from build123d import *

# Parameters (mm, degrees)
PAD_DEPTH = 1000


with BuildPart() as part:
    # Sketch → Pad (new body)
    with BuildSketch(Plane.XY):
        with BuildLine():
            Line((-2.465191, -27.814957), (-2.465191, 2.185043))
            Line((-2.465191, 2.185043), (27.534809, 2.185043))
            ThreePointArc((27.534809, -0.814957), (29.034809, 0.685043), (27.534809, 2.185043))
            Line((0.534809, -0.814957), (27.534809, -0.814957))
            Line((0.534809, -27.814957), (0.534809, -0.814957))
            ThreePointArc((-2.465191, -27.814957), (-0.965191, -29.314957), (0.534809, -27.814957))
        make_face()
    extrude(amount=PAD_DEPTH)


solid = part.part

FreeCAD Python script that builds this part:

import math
import FreeCAD as App
import Part
import Sketcher
from FreeCAD import Vector
Q = App.Units.Quantity

doc = App.newDocument("Part")
body = doc.addObject("PartDesign::Body", "Body")

# Sketch on XY plane
sketch1 = body.newObject("Sketcher::SketchObject", "Sketch")
sketch1.AttachmentSupport = (doc.getObject("XY_Plane"), [""])
sketch1.MapMode = "FlatFace"
sketch1.addGeometry([
    Part.LineSegment(Vector(-2.5, 2.2, 0), Vector(-2.5, -27.8, 0)),  # 0
    Part.ArcOfCircle(Part.Circle(Vector(-1, -27.8, 0), Vector(0, 0, 1), 1.5), math.radians(180), math.radians(360)),  # 1
    Part.LineSegment(Vector(0.5, -27.8, 0), Vector(0.5, -0.8, 0)),  # 2
    Part.LineSegment(Vector(0.5, -0.8, 0), Vector(27.5, -0.8, 0)),  # 3
    Part.ArcOfCircle(Part.Circle(Vector(27.5, 0.7, 0), Vector(0, 0, 1), 1.5), math.radians(-90), math.radians(90)),  # 4
    Part.LineSegment(Vector(27.5, 2.2, 0), Vector(-2.5, 2.2, 0)),  # 5
], False)
sketch1.addConstraint([
    Sketcher.Constraint("Tangent", 0, 2, 1, 1),
    Sketcher.Constraint("Tangent", 1, 2, 2, 1),
    Sketcher.Constraint("Coincident", 2, 2, 3, 1),
    Sketcher.Constraint("Tangent", 3, 2, 4, 1),
    Sketcher.Constraint("Tangent", 4, 2, 5, 1),
    Sketcher.Constraint("Coincident", 5, 2, 0, 1),
    Sketcher.Constraint("Vertical", 0),
    Sketcher.Constraint("Vertical", 2),
    Sketcher.Constraint("Horizontal", 3),
    Sketcher.Constraint("Horizontal", 5),
    Sketcher.Constraint("Equal", 1, 4),
    Sketcher.Constraint("Equal", 5, 0),
    Sketcher.Constraint("Radius", 1, Q("1.5 mm")),
    Sketcher.Constraint("DistanceX", 3, 1, 3, 2, Q("27 mm")),
    Sketcher.Constraint("DistanceX", 1, 3, -1, 1, Q("0.965191 mm")),
    Sketcher.Constraint("DistanceY", 1, 3, -1, 1, Q("27.814957 mm")),
])
pad1 = body.newObject("PartDesign::Pad", "Pad")
pad1.Profile = sketch1
pad1.Length = 1000

doc.recompute()
